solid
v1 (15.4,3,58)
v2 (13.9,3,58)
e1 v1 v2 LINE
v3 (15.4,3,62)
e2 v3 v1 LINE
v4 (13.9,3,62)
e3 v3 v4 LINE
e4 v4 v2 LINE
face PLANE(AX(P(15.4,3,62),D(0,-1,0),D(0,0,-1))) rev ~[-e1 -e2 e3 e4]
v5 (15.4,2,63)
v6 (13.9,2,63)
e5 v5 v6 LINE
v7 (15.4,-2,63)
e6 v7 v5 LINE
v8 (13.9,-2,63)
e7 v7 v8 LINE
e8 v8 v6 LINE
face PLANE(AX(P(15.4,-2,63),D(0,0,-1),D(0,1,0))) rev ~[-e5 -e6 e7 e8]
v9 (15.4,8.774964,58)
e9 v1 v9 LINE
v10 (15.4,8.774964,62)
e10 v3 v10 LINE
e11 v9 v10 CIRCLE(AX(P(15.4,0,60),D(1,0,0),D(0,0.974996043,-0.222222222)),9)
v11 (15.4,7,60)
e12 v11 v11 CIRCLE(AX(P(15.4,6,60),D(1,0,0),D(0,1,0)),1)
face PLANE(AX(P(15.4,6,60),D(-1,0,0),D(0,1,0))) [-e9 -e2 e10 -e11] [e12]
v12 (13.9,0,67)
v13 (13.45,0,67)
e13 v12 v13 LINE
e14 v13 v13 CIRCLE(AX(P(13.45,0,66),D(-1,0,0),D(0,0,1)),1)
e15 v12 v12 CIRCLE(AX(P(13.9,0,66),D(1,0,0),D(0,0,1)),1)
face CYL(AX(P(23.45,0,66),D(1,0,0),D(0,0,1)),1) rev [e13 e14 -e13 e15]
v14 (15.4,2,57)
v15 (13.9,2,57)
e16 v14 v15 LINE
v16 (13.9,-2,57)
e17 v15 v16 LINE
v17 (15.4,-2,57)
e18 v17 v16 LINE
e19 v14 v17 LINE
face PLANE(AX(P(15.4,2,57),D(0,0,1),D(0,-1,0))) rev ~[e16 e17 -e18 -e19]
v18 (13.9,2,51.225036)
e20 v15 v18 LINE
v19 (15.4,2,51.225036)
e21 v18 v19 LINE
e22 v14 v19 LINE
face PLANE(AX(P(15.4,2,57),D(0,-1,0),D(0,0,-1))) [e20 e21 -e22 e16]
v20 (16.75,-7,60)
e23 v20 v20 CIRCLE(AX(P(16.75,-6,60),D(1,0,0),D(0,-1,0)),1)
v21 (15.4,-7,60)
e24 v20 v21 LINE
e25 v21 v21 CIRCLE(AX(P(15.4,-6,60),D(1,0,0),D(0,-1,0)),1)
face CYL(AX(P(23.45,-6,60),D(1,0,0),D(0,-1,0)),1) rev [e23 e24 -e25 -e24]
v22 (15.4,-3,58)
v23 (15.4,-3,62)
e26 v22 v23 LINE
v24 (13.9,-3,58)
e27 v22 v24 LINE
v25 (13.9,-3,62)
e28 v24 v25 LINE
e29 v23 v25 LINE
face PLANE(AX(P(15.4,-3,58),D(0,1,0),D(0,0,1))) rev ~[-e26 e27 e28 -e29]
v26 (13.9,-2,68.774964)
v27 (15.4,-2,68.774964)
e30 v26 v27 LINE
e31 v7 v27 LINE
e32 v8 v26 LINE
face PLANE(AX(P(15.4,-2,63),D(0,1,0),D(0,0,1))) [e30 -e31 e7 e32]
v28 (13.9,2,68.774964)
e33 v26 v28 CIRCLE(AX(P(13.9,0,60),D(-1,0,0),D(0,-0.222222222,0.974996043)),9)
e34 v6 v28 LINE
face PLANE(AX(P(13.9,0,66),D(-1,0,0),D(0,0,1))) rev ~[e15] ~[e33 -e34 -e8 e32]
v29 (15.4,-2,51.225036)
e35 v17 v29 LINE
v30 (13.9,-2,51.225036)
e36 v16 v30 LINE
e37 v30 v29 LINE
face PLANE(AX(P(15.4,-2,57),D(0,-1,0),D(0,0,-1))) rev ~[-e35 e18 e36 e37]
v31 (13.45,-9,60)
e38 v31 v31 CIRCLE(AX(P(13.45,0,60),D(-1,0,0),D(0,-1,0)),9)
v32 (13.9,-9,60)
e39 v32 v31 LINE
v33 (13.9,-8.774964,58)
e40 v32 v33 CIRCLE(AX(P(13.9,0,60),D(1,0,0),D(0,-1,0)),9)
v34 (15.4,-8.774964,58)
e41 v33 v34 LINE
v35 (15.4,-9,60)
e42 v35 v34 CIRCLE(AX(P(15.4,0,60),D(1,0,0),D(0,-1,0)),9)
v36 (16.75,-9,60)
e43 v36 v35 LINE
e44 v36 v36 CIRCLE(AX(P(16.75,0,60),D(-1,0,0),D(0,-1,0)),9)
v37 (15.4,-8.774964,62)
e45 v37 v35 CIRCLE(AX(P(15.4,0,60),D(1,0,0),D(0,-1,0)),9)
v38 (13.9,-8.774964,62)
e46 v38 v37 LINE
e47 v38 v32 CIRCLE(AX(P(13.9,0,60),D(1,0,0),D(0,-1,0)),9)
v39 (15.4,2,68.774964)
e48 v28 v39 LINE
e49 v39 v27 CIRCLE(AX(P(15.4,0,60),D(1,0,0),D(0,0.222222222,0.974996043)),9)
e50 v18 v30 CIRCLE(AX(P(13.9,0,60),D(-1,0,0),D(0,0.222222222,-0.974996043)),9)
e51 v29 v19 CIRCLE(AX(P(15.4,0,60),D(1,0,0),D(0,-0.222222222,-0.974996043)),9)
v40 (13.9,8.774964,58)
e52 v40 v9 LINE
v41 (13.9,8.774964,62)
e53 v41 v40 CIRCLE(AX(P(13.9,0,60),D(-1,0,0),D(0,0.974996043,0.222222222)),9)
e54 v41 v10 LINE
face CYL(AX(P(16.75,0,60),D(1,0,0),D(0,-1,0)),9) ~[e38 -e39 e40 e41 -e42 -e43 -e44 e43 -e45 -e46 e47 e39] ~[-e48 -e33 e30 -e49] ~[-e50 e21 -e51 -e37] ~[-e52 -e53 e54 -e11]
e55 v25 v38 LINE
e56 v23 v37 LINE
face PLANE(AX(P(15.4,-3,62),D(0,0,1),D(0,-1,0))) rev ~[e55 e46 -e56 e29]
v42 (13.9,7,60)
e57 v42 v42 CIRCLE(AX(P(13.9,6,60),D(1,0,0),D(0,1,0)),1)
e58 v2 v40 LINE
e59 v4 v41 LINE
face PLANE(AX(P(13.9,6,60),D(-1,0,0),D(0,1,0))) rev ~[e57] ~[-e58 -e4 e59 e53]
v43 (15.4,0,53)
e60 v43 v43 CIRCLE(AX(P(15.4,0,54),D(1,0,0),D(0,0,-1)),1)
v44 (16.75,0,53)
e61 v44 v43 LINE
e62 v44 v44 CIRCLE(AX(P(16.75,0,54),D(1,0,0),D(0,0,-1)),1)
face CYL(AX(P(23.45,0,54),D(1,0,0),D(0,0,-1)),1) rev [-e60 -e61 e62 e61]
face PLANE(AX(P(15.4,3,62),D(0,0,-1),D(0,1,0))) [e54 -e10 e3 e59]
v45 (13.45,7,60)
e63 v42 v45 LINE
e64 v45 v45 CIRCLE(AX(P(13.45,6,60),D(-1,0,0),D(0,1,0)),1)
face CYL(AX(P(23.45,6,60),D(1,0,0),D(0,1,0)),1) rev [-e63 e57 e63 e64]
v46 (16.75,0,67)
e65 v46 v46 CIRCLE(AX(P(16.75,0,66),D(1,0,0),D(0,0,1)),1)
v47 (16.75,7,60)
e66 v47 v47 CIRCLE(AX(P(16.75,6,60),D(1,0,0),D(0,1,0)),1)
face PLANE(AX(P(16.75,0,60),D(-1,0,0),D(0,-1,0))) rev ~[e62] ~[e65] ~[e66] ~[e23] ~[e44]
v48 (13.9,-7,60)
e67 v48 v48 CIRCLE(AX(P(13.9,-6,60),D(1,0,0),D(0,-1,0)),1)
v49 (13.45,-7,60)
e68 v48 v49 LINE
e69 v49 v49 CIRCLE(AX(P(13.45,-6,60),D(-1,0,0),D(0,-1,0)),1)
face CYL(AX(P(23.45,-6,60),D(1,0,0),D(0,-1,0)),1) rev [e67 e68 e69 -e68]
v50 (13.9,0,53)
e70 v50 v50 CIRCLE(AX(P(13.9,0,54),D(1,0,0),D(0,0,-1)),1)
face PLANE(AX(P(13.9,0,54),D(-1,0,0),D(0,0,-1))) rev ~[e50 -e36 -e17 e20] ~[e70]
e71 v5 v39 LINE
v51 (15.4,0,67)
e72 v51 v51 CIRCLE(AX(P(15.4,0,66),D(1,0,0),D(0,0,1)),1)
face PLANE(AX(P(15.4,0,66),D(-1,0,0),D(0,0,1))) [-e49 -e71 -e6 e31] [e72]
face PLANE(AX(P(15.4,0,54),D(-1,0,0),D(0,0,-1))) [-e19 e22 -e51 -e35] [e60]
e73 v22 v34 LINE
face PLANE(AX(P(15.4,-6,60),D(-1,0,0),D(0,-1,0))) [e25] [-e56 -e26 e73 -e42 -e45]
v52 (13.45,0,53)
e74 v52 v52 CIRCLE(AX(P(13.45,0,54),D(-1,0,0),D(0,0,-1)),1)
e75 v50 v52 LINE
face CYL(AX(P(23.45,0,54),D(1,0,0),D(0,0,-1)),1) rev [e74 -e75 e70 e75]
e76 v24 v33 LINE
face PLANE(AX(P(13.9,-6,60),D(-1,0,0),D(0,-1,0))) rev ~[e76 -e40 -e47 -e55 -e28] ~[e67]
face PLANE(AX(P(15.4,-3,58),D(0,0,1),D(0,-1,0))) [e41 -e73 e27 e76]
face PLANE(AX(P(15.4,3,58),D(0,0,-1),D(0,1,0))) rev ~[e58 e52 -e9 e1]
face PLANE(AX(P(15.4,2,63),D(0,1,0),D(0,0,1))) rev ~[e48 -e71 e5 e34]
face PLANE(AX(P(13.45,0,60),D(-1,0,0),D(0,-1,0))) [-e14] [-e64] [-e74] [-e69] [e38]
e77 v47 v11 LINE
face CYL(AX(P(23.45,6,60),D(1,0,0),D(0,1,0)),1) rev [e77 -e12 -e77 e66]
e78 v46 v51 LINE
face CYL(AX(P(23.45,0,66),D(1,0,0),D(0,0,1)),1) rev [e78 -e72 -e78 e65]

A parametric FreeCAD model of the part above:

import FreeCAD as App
import Part
import Sketcher

V = App.Vector

doc = App.newDocument("Part")
params = doc.addObject("Spreadsheet::Sheet", "Params")
for row, (alias, value) in enumerate([
    ("sketch1_width", "4 mm"),
    ("sketch1_height", "6 mm"),
    ("pad1_length", "1.5 mm"),
    ("sketch2_width", "6 mm"),
    ("sketch2_height", "4 mm"),
    ("pad2_length", "1.5 mm"),
    ("sketch3_width", "4 mm"),
    ("sketch3_height", "6 mm"),
    ("pad3_length", "1.5 mm"),
    ("sketch4_width", "6 mm"),
    ("sketch4_height", "4 mm"),
    ("pad4_length", "1.5 mm"),
    ("sketch5_diameter", "2 mm"),
    ("pad5_length", "10 mm"),
    ("sketch6_diameter", "2 mm"),
    ("pad6_length", "10 mm"),
    ("sketch7_diameter", "2 mm"),
    ("pad7_length", "10 mm"),
    ("sketch8_diameter", "2 mm"),
    ("pad8_length", "10 mm"),
    ("sketch9_diameter", "18 mm"),
    ("pad9_length", "3.3 mm"),
], start=1):
    params.set(f"A{row}", alias)
    params.set(f"B{row}", "=" + value)
    params.setAlias(f"B{row}", alias)

body = doc.addObject("PartDesign::Body", "Body")

# Sketch on XY plane
sketch1 = doc.addObject("Sketcher::SketchObject", "Sketch")
body.addObject(sketch1)
sketch1.AttachmentSupport = (doc.XY_Plane, [""])
sketch1.MapMode = "FlatFace"
sketch1.AttachmentOffset = App.Placement(V(0, 0, -9.4), App.Rotation())
sketch1.addGeometry([
    Part.LineSegment(V(-2, 3, 0), V(2, 3, 0)),
    Part.LineSegment(V(2, 3, 0), V(2, 9, 0)),
    Part.LineSegment(V(2, 9, 0), V(-2, 9, 0)),
    Part.LineSegment(V(-2, 9, 0), V(-2, 3, 0)),
], False)
sketch1.addConstraint([
    Sketcher.Constraint("Coincident", 0, 2, 1, 1),
    Sketcher.Constraint("Coincident", 1, 2, 2, 1),
    Sketcher.Constraint("Coincident", 2, 2, 3, 1),
    Sketcher.Constraint("Coincident", 3, 2, 0, 1),
    Sketcher.Constraint("Horizontal", 0),
    Sketcher.Constraint("Vertical", 1),
    Sketcher.Constraint("Horizontal", 2),
    Sketcher.Constraint("Vertical", 3),
    Sketcher.Constraint("DistanceX", 0, 1, 0, 2, 4.0),
    Sketcher.Constraint("DistanceY", 1, 1, 1, 2, 6.0),
    Sketcher.Constraint("DistanceX", -1, 1, 0, 2, 2.0),
    Sketcher.Constraint("DistanceY", -1, 1, 0, 2, 3.0),
])
sketch1.setExpression("Constraints[8]", "Params.sketch1_width")
sketch1.setExpression("Constraints[9]", "Params.sketch1_height")
pad1 = doc.addObject("PartDesign::Pad", "Pad")
body.addObject(pad1)
pad1.Profile = sketch1
pad1.setExpression("Length", "Params.pad1_length")
body2 = doc.addObject("PartDesign::Body", "Body001")

# Sketch on XY plane
sketch2 = doc.addObject("Sketcher::SketchObject", "Sketch001")
body2.addObject(sketch2)
sketch2.AttachmentSupport = (doc.getObject("XY_Plane001"), [""])
sketch2.MapMode = "FlatFace"
sketch2.AttachmentOffset = App.Placement(V(0, 0, -9.4), App.Rotation())
sketch2.addGeometry([
    Part.LineSegment(V(-3, -2, 0), V(-3, 2, 0)),
    Part.LineSegment(V(-3, 2, 0), V(-9, 2, 0)),
    Part.LineSegment(V(-9, 2, 0), V(-9, -2, 0)),
    Part.LineSegment(V(-9, -2, 0), V(-3, -2, 0)),
], False)
sketch2.addConstraint([
    Sketcher.Constraint("Coincident", 0, 2, 1, 1),
    Sketcher.Constraint("Coincident", 1, 2, 2, 1),
    Sketcher.Constraint("Coincident", 2, 2, 3, 1),
    Sketcher.Constraint("Coincident", 3, 2, 0, 1),
    Sketcher.Constraint("Vertical", 0),
    Sketcher.Constraint("Horizontal", 1),
    Sketcher.Constraint("Vertical", 2),
    Sketcher.Constraint("Horizontal", 3),
    Sketcher.Constraint("DistanceX", 1, 2, 1, 1, 6.0),
    Sketcher.Constraint("DistanceY", 0, 1, 0, 2, 4.0),
    Sketcher.Constraint("DistanceX", 0, 2, -1, 1, 3.0),
    Sketcher.Constraint("DistanceY", -1, 1, 0, 2, 2.0),
])
sketch2.setExpression("Constraints[8]", "Params.sketch2_width")
sketch2.setExpression("Constraints[9]", "Params.sketch2_height")
pad2 = doc.addObject("PartDesign::Pad", "Pad001")
body2.addObject(pad2)
pad2.Profile = sketch2
pad2.setExpression("Length", "Params.pad2_length")
body3 = doc.addObject("PartDesign::Body", "Body002")

# Sketch on XY plane
sketch3 = doc.addObject("Sketcher::SketchObject", "Sketch002")
body3.addObject(sketch3)
sketch3.AttachmentSupport = (doc.getObject("XY_Plane002"), [""])
sketch3.MapMode = "FlatFace"
sketch3.AttachmentOffset = App.Placement(V(0, 0, -9.4), App.Rotation())
sketch3.addGeometry([
    Part.LineSegment(V(2, -3, 0), V(-2, -3, 0)),
    Part.LineSegment(V(-2, -3, 0), V(-2, -9, 0)),
    Part.LineSegment(V(-2, -9, 0), V(2, -9, 0)),
    Part.LineSegment(V(2, -9, 0), V(2, -3, 0)),
], False)
sketch3.addConstraint([
    Sketcher.Constraint("Coincident", 0, 2, 1, 1),
    Sketcher.Constraint("Coincident", 1, 2, 2, 1),
    Sketcher.Constraint("Coincident", 2, 2, 3, 1),
    Sketcher.Constraint("Coincident", 3, 2, 0, 1),
    Sketcher.Constraint("Horizontal", 0),
    Sketcher.Constraint("Vertical", 1),
    Sketcher.Constraint("Horizontal", 2),
    Sketcher.Constraint("Vertical", 3),
    Sketcher.Constraint("DistanceX", 0, 2, 0, 1, 4.0),
    Sketcher.Constraint("DistanceY", 1, 2, 1, 1, 6.0),
    Sketcher.Constraint("DistanceX", 0, 2, -1, 1, 2.0),
    Sketcher.Constraint("DistanceY", 0, 2, -1, 1, 3.0),
])
sketch3.setExpression("Constraints[8]", "Params.sketch3_width")
sketch3.setExpression("Constraints[9]", "Params.sketch3_height")
pad3 = doc.addObject("PartDesign::Pad", "Pad002")
body3.addObject(pad3)
pad3.Profile = sketch3
pad3.setExpression("Length", "Params.pad3_length")
body4 = doc.addObject("PartDesign::Body", "Body003")
body4.AllowCompound = True

# Sketch on XY plane
sketch4 = doc.addObject("Sketcher::SketchObject", "Sketch003")
body4.addObject(sketch4)
sketch4.AttachmentSupport = (doc.getObject("XY_Plane003"), [""])
sketch4.MapMode = "FlatFace"
sketch4.AttachmentOffset = App.Placement(V(0, 0, -9.4), App.Rotation())
sketch4.addGeometry([
    Part.LineSegment(V(3, 2, 0), V(3, -2, 0)),
    Part.LineSegment(V(3, -2, 0), V(9, -2, 0)),
    Part.LineSegment(V(9, -2, 0), V(9, 2, 0)),
    Part.LineSegment(V(9, 2, 0), V(3, 2, 0)),
], False)
sketch4.addConstraint([
    Sketcher.Constraint("Coincident", 0, 2, 1, 1),
    Sketcher.Constraint("Coincident", 1, 2, 2, 1),
    Sketcher.Constraint("Coincident", 2, 2, 3, 1),
    Sketcher.Constraint("Coincident", 3, 2, 0, 1),
    Sketcher.Constraint("Vertical", 0),
    Sketcher.Constraint("Horizontal", 1),
    Sketcher.Constraint("Vertical", 2),
    Sketcher.Constraint("Horizontal", 3),
    Sketcher.Constraint("DistanceX", 1, 1, 1, 2, 6.0),
    Sketcher.Constraint("DistanceY", 0, 2, 0, 1, 4.0),
    Sketcher.Constraint("DistanceX", -1, 1, 0, 2, 3.0),
    Sketcher.Constraint("DistanceY", 0, 2, -1, 1, 2.0),
])
sketch4.setExpression("Constraints[8]", "Params.sketch4_width")
sketch4.setExpression("Constraints[9]", "Params.sketch4_height")
pad4 = doc.addObject("PartDesign::Pad", "Pad003")
body4.addObject(pad4)
pad4.Profile = sketch4
pad4.setExpression("Length", "Params.pad4_length")
doc.recompute()

boolean = doc.addObject("PartDesign::Boolean", "Boolean")
body4.addObject(boolean)
boolean.Type = "Fuse"
boolean.addObjects([body])
doc.recompute()

boolean2 = doc.addObject("PartDesign::Boolean", "Boolean001")
body4.addObject(boolean2)
boolean2.Type = "Fuse"
boolean2.addObjects([body2])
doc.recompute()

boolean3 = doc.addObject("PartDesign::Boolean", "Boolean002")
body4.addObject(boolean3)
boolean3.Type = "Fuse"
boolean3.addObjects([body3])
body5 = doc.addObject("PartDesign::Body", "Body004")
body5.AllowCompound = True
doc.recompute()

body4.Placement = App.Placement(V(0, 0, 0), App.Rotation(V(1, 0, 0), 90))
boolean4 = doc.addObject("PartDesign::Boolean", "Boolean003")
body5.addObject(boolean4)
boolean4.Type = "Fuse"
boolean4.addObjects([body4])
body6 = doc.addObject("PartDesign::Body", "Body005")
body6.AllowCompound = True
doc.recompute()

body5.Placement = App.Placement(V(6, 0, 60), App.Rotation(V(0, 0, 1), 270))
boolean5 = doc.addObject("PartDesign::Boolean", "Boolean004")
body6.addObject(boolean5)
boolean5.Type = "Fuse"
boolean5.addObjects([body5])
body7 = doc.addObject("PartDesign::Body", "Body006")

# Sketch on XY plane
sketch5 = doc.addObject("Sketcher::SketchObject", "Sketch004")
body7.addObject(sketch5)
sketch5.AttachmentSupport = (doc.getObject("XY_Plane006"), [""])
sketch5.MapMode = "FlatFace"
sketch5.AttachmentOffset = App.Placement(V(0, 0, -9.6), App.Rotation())
sketch5.addGeometry(Part.Circle(V(0, 6, 0), V(0, 0, 1), 1), False)
sketch5.addConstraint([
    Sketcher.Constraint("PointOnObject", 0, 3, -2),
    Sketcher.Constraint("Diameter", 0, 2.0),
    Sketcher.Constraint("DistanceY", -1, 1, 0, 3, 6.0),
])
sketch5.setExpression("Constraints[1]", "Params.sketch5_diameter")
pad5 = doc.addObject("PartDesign::Pad", "Pad004")
body7.addObject(pad5)
pad5.Profile = sketch5
pad5.setExpression("Length", "Params.pad5_length")
body8 = doc.addObject("PartDesign::Body", "Body007")

# Sketch on XY plane
sketch6 = doc.addObject("Sketcher::SketchObject", "Sketch005")
body8.addObject(sketch6)
sketch6.AttachmentSupport = (doc.getObject("XY_Plane007"), [""])
sketch6.MapMode = "FlatFace"
sketch6.AttachmentOffset = App.Placement(V(0, 0, -9.6), App.Rotation())
sketch6.addGeometry(Part.Circle(V(-6, 0, 0), V(0, 0, 1), 1), False)
sketch6.addConstraint([
    Sketcher.Constraint("PointOnObject", 0, 3, -1),
    Sketcher.Constraint("Diameter", 0, 2.0),
    Sketcher.Constraint("DistanceX", 0, 3, -1, 1, 6.0),
])
sketch6.setExpression("Constraints[1]", "Params.sketch6_diameter")
pad6 = doc.addObject("PartDesign::Pad", "Pad005")
body8.addObject(pad6)
pad6.Profile = sketch6
pad6.setExpression("Length", "Params.pad6_length")
body9 = doc.addObject("PartDesign::Body", "Body008")

# Sketch on XY plane
sketch7 = doc.addObject("Sketcher::SketchObject", "Sketch006")
body9.addObject(sketch7)
sketch7.AttachmentSupport = (doc.getObject("XY_Plane008"), [""])
sketch7.MapMode = "FlatFace"
sketch7.AttachmentOffset = App.Placement(V(0, 0, -9.6), App.Rotation())
sketch7.addGeometry(Part.Circle(V(0, -6, 0), V(0, 0, 1), 1), False)
sketch7.addConstraint([
    Sketcher.Constraint("PointOnObject", 0, 3, -2),
    Sketcher.Constraint("Diameter", 0, 2.0),
    Sketcher.Constraint("DistanceY", 0, 3, -1, 1, 6.0),
])
sketch7.setExpression("Constraints[1]", "Params.sketch7_diameter")
pad7 = doc.addObject("PartDesign::Pad", "Pad006")
body9.addObject(pad7)
pad7.Profile = sketch7
pad7.setExpression("Length", "Params.pad7_length")
body10 = doc.addObject("PartDesign::Body", "Body009")
body10.AllowCompound = True

# Sketch on XY plane
sketch8 = doc.addObject("Sketcher::SketchObject", "Sketch007")
body10.addObject(sketch8)
sketch8.AttachmentSupport = (doc.getObject("XY_Plane009"), [""])
sketch8.MapMode = "FlatFace"
sketch8.AttachmentOffset = App.Placement(V(0, 0, -9.6), App.Rotation())
sketch8.addGeometry(Part.Circle(V(6, 0, 0), V(0, 0, 1), 1), False)
sketch8.addConstraint([
    Sketcher.Constraint("PointOnObject", 0, 3, -1),
    Sketcher.Constraint("Diameter", 0, 2.0),
    Sketcher.Constraint("DistanceX", -1, 1, 0, 3, 6.0),
])
sketch8.setExpression("Constraints[1]", "Params.sketch8_diameter")
pad8 = doc.addObject("PartDesign::Pad", "Pad007")
body10.addObject(pad8)
pad8.Profile = sketch8
pad8.setExpression("Length", "Params.pad8_length")
doc.recompute()

boolean6 = doc.addObject("PartDesign::Boolean", "Boolean005")
body10.addObject(boolean6)
boolean6.Type = "Fuse"
boolean6.addObjects([body7])
doc.recompute()

boolean7 = doc.addObject("PartDesign::Boolean", "Boolean006")
body10.addObject(boolean7)
boolean7.Type = "Fuse"
boolean7.addObjects([body8])
doc.recompute()

boolean8 = doc.addObject("PartDesign::Boolean", "Boolean007")
body10.addObject(boolean8)
boolean8.Type = "Fuse"
boolean8.addObjects([body9])
body11 = doc.addObject("PartDesign::Body", "Body010")
body11.AllowCompound = True
doc.recompute()

body10.Placement = App.Placement(V(0, 0, 0), App.Rotation(V(1, 0, 0), 90))
boolean9 = doc.addObject("PartDesign::Boolean", "Boolean008")
body11.addObject(boolean9)
boolean9.Type = "Fuse"
boolean9.addObjects([body10])
body12 = doc.addObject("PartDesign::Body", "Body011")
body12.AllowCompound = True
doc.recompute()

body11.Placement = App.Placement(V(13.85, 0, 60), App.Rotation(V(0, 0, 1), 270))
boolean10 = doc.addObject("PartDesign::Boolean", "Boolean009")
body12.addObject(boolean10)
boolean10.Type = "Fuse"
boolean10.addObjects([body11])
body13 = doc.addObject("PartDesign::Body", "Body012")

# Sketch on YZ plane
sketch9 = doc.addObject("Sketcher::SketchObject", "Sketch008")
body13.addObject(sketch9)
sketch9.AttachmentSupport = (doc.getObject("YZ_Plane012"), [""])
sketch9.MapMode = "FlatFace"
sketch9.AttachmentOffset = App.Placement(V(0, 0, 16.75), App.Rotation())
sketch9.addGeometry(Part.Circle(V(0, 60, 0), V(0, 0, 1), 9), False)
sketch9.addConstraint([
    Sketcher.Constraint("PointOnObject", 0, 3, -2),
    Sketcher.Constraint("Diameter", 0, 18.0),
    Sketcher.Constraint("DistanceY", -1, 1, 0, 3, 60.0),
])
sketch9.setExpression("Constraints[1]", "Params.sketch9_diameter")
pad9 = doc.addObject("PartDesign::Pad", "Pad008")
body13.addObject(pad9)
pad9.Profile = sketch9
pad9.setExpression("Length", "Params.pad9_length")
pad9.Reversed = True
doc.recompute()

boolean11 = doc.addObject("PartDesign::Boolean", "Boolean010")
body13.addObject(boolean11)
boolean11.Type = "Cut"
boolean11.addObjects([body12])
doc.recompute()

boolean12 = doc.addObject("PartDesign::Boolean", "Boolean011")
body13.addObject(boolean12)
boolean12.Type = "Cut"
boolean12.addObjects([body6])

doc.recompute()
